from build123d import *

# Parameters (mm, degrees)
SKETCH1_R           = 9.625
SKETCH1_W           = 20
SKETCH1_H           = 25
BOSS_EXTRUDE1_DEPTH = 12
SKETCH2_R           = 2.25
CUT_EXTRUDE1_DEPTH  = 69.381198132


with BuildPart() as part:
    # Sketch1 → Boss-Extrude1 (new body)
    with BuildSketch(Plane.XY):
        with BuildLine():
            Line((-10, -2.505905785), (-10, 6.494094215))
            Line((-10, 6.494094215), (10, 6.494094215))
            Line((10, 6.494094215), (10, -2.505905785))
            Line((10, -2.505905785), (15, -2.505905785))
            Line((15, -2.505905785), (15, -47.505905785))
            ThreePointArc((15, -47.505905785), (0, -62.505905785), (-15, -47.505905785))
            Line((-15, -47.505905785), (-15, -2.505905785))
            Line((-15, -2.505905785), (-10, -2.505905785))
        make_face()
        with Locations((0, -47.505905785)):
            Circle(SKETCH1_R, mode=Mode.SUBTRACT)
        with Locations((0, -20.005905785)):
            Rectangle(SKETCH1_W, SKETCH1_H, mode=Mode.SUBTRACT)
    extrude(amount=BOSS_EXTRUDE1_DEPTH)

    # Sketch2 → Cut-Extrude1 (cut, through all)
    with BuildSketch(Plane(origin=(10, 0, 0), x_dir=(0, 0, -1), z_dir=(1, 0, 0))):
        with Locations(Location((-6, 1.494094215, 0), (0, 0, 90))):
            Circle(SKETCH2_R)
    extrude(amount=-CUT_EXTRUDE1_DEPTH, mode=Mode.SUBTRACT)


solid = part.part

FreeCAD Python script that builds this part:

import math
import FreeCAD as App
import Part
import Sketcher
Q = App.Units.Quantity

doc = App.newDocument("Part")
params = doc.addObject("Spreadsheet::Sheet", "Params")
for row, (alias, value) in enumerate([
    ("sketch1_radius", "15 mm"),
    ("sketch1_diameter", "19.25 mm"),
    ("sketch1_width", "5 mm"),
    ("sketch1_height", "9 mm"),
    ("sketch1_height2", "45 mm"),
    ("pad1_length", "12 mm"),
    ("sketch2_diameter", "4.5 mm"),
], start=1):
    params.set(f"A{row}", alias)
    params.set(f"B{row}", "=" + value)
    params.setAlias(f"B{row}", alias)

body = doc.addObject("PartDesign::Body", "Body")

sketch1 = body.newObject("Sketcher::SketchObject", "Sketch")
sketch1.AttachmentSupport = (doc.getObject("XY_Plane"), [""])
sketch1.MapMode = "FlatFace"
sketch1.addGeometry(Part.LineSegment(App.Vector(-10, 6, 0), App.Vector(-10, -3, 0)), False)
sketch1.addGeometry(Part.LineSegment(App.Vector(-10, -3, 0), App.Vector(-15, -3, 0)), False)
sketch1.addGeometry(Part.LineSegment(App.Vector(-15, -3, 0), App.Vector(-15, -48, 0)), False)
sketch1.addGeometry(Part.ArcOfCircle(Part.Circle(App.Vector(0, -48, 0), App.Vector(0, 0, 1), 15), math.radians(180), math.radians(360)), False)
sketch1.addGeometry(Part.LineSegment(App.Vector(15, -48, 0), App.Vector(15, -3, 0)), False)
sketch1.addGeometry(Part.LineSegment(App.Vector(15, -3, 0), App.Vector(10, -3, 0)), False)
sketch1.addGeometry(Part.LineSegment(App.Vector(10, -3, 0), App.Vector(10, 6, 0)), False)
sketch1.addGeometry(Part.LineSegment(App.Vector(10, 6, 0), App.Vector(-10, 6, 0)), False)
sketch1.addGeometry(Part.Circle(App.Vector(0, -48, 0), App.Vector(0, 0, 1), 10), False)
sketch1.addGeometry(Part.LineSegment(App.Vector(-10, -33, 0), App.Vector(-10, -8, 0)), False)
sketch1.addGeometry(Part.LineSegment(App.Vector(-10, -8, 0), App.Vector(10, -8, 0)), False)
sketch1.addGeometry(Part.LineSegment(App.Vector(10, -8, 0), App.Vector(10, -33, 0)), False)
sketch1.addGeometry(Part.LineSegment(App.Vector(10, -33, 0), App.Vector(-10, -33, 0)), False)
sketch1.addConstraint(Sketcher.Constraint("Coincident", 0, 2, 1, 1))
sketch1.addConstraint(Sketcher.Constraint("Coincident", 1, 2, 2, 1))
sketch1.addConstraint(Sketcher.Constraint("Tangent", 2, 2, 3, 1))
sketch1.addConstraint(Sketcher.Constraint("Tangent", 3, 2, 4, 1))
sketch1.addConstraint(Sketcher.Constraint("Coincident", 4, 2, 5, 1))
sketch1.addConstraint(Sketcher.Constraint("Coincident", 5, 2, 6, 1))
sketch1.addConstraint(Sketcher.Constraint("Coincident", 6, 2, 7, 1))
sketch1.addConstraint(Sketcher.Constraint("Coincident", 7, 2, 0, 1))
sketch1.addConstraint(Sketcher.Constraint("Coincident", 9, 2, 10, 1))
sketch1.addConstraint(Sketcher.Constraint("Coincident", 10, 2, 11, 1))
sketch1.addConstraint(Sketcher.Constraint("Coincident", 11, 2, 12, 1))
sketch1.addConstraint(Sketcher.Constraint("Coincident", 12, 2, 9, 1))
sketch1.addConstraint(Sketcher.Constraint("Vertical", 0))
sketch1.addConstraint(Sketcher.Constraint("Horizontal", 1))
sketch1.addConstraint(Sketcher.Constraint("Vertical", 2))
sketch1.addConstraint(Sketcher.Constraint("Vertical", 4))
sketch1.addConstraint(Sketcher.Constraint("Horizontal", 5))
sketch1.addConstraint(Sketcher.Constraint("Vertical", 6))
sketch1.addConstraint(Sketcher.Constraint("Horizontal", 7))
sketch1.addConstraint(Sketcher.Constraint("Vertical", 9))
sketch1.addConstraint(Sketcher.Constraint("Horizontal", 10))
sketch1.addConstraint(Sketcher.Constraint("Vertical", 11))
sketch1.addConstraint(Sketcher.Constraint("Horizontal", 12))
sketch1.addConstraint(Sketcher.Constraint("Coincident", 8, 3, 3, 3))
sketch1.addConstraint(Sketcher.Constraint("Symmetric", 1, 2, 4, 2, -2))
sketch1.addConstraint(Sketcher.Constraint("Vertical", 7, 2, 9, 2))
sketch1.addConstraint(Sketcher.Constraint("Vertical", 6, 2, 10, 2))
sketch1.addConstraint(Sketcher.Constraint("Equal", 1, 5))
sketch1.addConstraint(Sketcher.Constraint("Radius", 3, Q("15 mm")))
sketch1.addConstraint(Sketcher.Constraint("Diameter", 8, Q("19.25 mm")))
sketch1.addConstraint(Sketcher.Constraint("DistanceX", 1, 2, 1, 1, Q("5 mm")))
sketch1.addConstraint(Sketcher.Constraint("DistanceY", 0, 2, 0, 1, Q("9 mm")))
sketch1.addConstraint(Sketcher.Constraint("DistanceY", 2, 2, 2, 1, Q("45 mm")))
sketch1.addConstraint(Sketcher.Constraint("DistanceY", 9, 1, 9, 2, Q("25 mm")))
sketch1.addConstraint(Sketcher.Constraint("DistanceY", 9, 2, 0, 2, Q("5 mm")))
sketch1.addConstraint(Sketcher.Constraint("DistanceY", 3, 3, -1, 1, Q("47.505906 mm")))
sketch1.setExpression("Constraints[28]", "Params.sketch1_radius")
sketch1.setExpression("Constraints[29]", "Params.sketch1_diameter")
sketch1.setExpression("Constraints[30]", "Params.sketch1_width")
sketch1.setExpression("Constraints[31]", "Params.sketch1_height")
sketch1.setExpression("Constraints[32]", "Params.sketch1_height2")
pad1 = body.newObject("PartDesign::Pad", "Pad")
pad1.Profile = sketch1
pad1.setExpression("Length", "Params.pad1_length")

sketch2 = body.newObject("Sketcher::SketchObject", "Sketch001")
sketch2.AttachmentSupport = (doc.getObject("YZ_Plane"), [""])
sketch2.MapMode = "FlatFace"
sketch2.AttachmentOffset = App.Placement(App.Vector(0, 0, 10), App.Rotation())
sketch2.addGeometry(Part.Circle(App.Vector(1.5, 6, 0), App.Vector(0, 0, 1), 2.2), False)
sketch2.addConstraint(Sketcher.Constraint("Diameter", 0, Q("4.5 mm")))
sketch2.addConstraint(Sketcher.Constraint("DistanceY", -1, 1, 0, 3, Q("6 mm")))
sketch2.addConstraint(Sketcher.Constraint("DistanceX", -1, 1, 0, 3, Q("1.494094 mm")))
sketch2.setExpression("Constraints[0]", "Params.sketch2_diameter")
pocket1 = body.newObject("PartDesign::Pocket", "Pocket")
pocket1.Profile = sketch2
pocket1.Type = "ThroughAll"

doc.recompute()
